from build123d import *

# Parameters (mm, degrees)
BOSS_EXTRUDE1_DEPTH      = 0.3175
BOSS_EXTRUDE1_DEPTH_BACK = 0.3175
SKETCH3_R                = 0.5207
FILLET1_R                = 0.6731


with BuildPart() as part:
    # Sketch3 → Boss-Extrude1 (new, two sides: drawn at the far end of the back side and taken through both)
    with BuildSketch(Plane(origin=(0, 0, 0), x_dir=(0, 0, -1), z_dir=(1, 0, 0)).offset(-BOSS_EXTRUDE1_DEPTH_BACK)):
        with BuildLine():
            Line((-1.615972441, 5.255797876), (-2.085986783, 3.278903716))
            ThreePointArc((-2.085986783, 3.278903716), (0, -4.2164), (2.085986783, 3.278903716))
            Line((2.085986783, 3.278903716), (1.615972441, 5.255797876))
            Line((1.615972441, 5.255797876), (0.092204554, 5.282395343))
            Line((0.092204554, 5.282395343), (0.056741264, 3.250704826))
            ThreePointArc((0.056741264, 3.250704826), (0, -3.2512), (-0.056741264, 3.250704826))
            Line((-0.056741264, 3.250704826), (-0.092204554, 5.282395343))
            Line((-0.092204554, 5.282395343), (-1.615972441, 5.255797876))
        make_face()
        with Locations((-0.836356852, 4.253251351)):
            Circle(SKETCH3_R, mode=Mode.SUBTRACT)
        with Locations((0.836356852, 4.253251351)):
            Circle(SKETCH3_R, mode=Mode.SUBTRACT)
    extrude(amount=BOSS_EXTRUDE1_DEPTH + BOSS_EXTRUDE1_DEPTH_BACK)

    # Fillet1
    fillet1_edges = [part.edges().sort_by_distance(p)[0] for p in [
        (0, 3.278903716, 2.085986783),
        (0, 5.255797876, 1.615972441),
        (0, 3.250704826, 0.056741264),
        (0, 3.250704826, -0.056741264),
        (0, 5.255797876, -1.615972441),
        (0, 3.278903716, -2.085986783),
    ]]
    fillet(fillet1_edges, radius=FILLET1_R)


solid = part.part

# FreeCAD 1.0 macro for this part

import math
import FreeCAD as App
import Part
import Sketcher
from FreeCAD import Vector
Q = App.Units.Quantity


def edges_at(feature, points):
    """Names of the edges that pass closest to the given points."""
    edges = feature.Shape.Edges
    near = lambda p: min(range(len(edges)), key=lambda i: edges[i].distToShape(Part.Vertex(*p))[0])
    return sorted({f"Edge{near(p) + 1}" for p in points})

doc = App.newDocument("Part")
body = doc.addObject("PartDesign::Body", "Body")

# Sketch on YZ plane
sketch1 = body.newObject("Sketcher::SketchObject", "Sketch")
sketch1.AttachmentSupport = (doc.getObject("YZ_Plane"), [""])
sketch1.MapMode = "FlatFace"
sketch1.addGeometry([
    Part.LineSegment(Vector(5.26, 1.62, 0), Vector(3.28, 2.09, 0)),  # 0
    Part.ArcOfCircle(Part.Circle(Vector(-0.18, 0, 0), Vector(0, 0, 1), 4.04), math.radians(31), math.radians(329)),  # 1
    Part.LineSegment(Vector(3.28, -2.09, 0), Vector(5.26, -1.62, 0)),  # 2
    Part.LineSegment(Vector(5.26, -1.62, 0), Vector(5.28, -0.09, 0)),  # 3
    Part.LineSegment(Vector(5.28, -0.09, 0), Vector(3.25, -0.06, 0)),  # 4
    Part.ArcOfCircle(Part.Circle(Vector(0, 0, 0), Vector(0, 0, 1), 3.25), math.radians(1), math.radians(359)),  # 5
    Part.LineSegment(Vector(3.25, 0.06, 0), Vector(5.28, 0.09, 0)),  # 6
    Part.LineSegment(Vector(5.28, 0.09, 0), Vector(5.26, 1.62, 0)),  # 7
    Part.Circle(Vector(4.25, 0.84, 0), Vector(0, 0, 1), 0.52),  # 8
    Part.Circle(Vector(4.25, -0.84, 0), Vector(0, 0, 1), 0.52),  # 9
], False)
sketch1.addConstraint([
    Sketcher.Constraint("Coincident", 0, 2, 1, 1),
    Sketcher.Constraint("Coincident", 1, 2, 2, 1),
    Sketcher.Constraint("Coincident", 2, 2, 3, 1),
    Sketcher.Constraint("Coincident", 3, 2, 4, 1),
    Sketcher.Constraint("Coincident", 4, 2, 5, 2),
    Sketcher.Constraint("Coincident", 5, 1, 6, 1),
    Sketcher.Constraint("Coincident", 6, 2, 7, 1),
    Sketcher.Constraint("Coincident", 7, 2, 0, 1),
    Sketcher.Constraint("Coincident", 5, 3, -1, 1),
    Sketcher.Constraint("Equal", 8, 9),
    Sketcher.Constraint("Symmetric", 8, 3, 9, 3, -1),
    Sketcher.Constraint("Symmetric", 0, 2, 1, 2, -1),
    Sketcher.Constraint("Symmetric", 3, 2, 6, 2, -1),
    Sketcher.Constraint("Symmetric", 2, 2, 7, 2, -1),
    Sketcher.Constraint("Perpendicular", 3, 4),
    Sketcher.Constraint("Perpendicular", 6, 7),
    Sketcher.Constraint("Equal", 2, 4),
    Sketcher.Constraint("Diameter", 8, Q("0.041 in")),
    Sketcher.Constraint("Angle", 3, Q("89 deg")),
    Sketcher.Constraint("Radius", 5, Q("0.128 in")),
    Sketcher.Constraint("Distance", 0, Q("0.08 in")),
    Sketcher.Constraint("Distance", 3, Q("0.06 in")),
    Sketcher.Constraint("Radius", 1, Q("4.037923 mm")),
    Sketcher.Constraint("DistanceY", 4, 2, 8, 3, Q("0.893098 mm")),
    Sketcher.Constraint("DistanceX", 4, 2, 1, 2, Q("0.028199 mm")),
    Sketcher.Constraint("DistanceX", -1, 1, 8, 3, Q("4.253251 mm")),
    Sketcher.Constraint("DistanceY", 4, 2, -1, 1, Q("0.056741 mm")),
])
pad1 = body.newObject("PartDesign::Pad", "Pad")
pad1.Profile = sketch1
pad1.Type = "TwoLengths"
pad1.Length = Q("0.0125 in")
pad1.Length2 = Q("0.0125 in")
doc.recompute()

fillet = body.newObject("PartDesign::Fillet", "Fillet")
fillet.Base = (pad1, edges_at(pad1, [
    (0, 3.279, 2.086),
    (0, 5.256, 1.616),
    (0, 3.251, 0.057),
    (0, 3.251, -0.057),
    (0, 5.256, -1.616),
    (0, 3.279, -2.086),
]))
fillet.Radius = Q("0.0265 in")

doc.recompute()
